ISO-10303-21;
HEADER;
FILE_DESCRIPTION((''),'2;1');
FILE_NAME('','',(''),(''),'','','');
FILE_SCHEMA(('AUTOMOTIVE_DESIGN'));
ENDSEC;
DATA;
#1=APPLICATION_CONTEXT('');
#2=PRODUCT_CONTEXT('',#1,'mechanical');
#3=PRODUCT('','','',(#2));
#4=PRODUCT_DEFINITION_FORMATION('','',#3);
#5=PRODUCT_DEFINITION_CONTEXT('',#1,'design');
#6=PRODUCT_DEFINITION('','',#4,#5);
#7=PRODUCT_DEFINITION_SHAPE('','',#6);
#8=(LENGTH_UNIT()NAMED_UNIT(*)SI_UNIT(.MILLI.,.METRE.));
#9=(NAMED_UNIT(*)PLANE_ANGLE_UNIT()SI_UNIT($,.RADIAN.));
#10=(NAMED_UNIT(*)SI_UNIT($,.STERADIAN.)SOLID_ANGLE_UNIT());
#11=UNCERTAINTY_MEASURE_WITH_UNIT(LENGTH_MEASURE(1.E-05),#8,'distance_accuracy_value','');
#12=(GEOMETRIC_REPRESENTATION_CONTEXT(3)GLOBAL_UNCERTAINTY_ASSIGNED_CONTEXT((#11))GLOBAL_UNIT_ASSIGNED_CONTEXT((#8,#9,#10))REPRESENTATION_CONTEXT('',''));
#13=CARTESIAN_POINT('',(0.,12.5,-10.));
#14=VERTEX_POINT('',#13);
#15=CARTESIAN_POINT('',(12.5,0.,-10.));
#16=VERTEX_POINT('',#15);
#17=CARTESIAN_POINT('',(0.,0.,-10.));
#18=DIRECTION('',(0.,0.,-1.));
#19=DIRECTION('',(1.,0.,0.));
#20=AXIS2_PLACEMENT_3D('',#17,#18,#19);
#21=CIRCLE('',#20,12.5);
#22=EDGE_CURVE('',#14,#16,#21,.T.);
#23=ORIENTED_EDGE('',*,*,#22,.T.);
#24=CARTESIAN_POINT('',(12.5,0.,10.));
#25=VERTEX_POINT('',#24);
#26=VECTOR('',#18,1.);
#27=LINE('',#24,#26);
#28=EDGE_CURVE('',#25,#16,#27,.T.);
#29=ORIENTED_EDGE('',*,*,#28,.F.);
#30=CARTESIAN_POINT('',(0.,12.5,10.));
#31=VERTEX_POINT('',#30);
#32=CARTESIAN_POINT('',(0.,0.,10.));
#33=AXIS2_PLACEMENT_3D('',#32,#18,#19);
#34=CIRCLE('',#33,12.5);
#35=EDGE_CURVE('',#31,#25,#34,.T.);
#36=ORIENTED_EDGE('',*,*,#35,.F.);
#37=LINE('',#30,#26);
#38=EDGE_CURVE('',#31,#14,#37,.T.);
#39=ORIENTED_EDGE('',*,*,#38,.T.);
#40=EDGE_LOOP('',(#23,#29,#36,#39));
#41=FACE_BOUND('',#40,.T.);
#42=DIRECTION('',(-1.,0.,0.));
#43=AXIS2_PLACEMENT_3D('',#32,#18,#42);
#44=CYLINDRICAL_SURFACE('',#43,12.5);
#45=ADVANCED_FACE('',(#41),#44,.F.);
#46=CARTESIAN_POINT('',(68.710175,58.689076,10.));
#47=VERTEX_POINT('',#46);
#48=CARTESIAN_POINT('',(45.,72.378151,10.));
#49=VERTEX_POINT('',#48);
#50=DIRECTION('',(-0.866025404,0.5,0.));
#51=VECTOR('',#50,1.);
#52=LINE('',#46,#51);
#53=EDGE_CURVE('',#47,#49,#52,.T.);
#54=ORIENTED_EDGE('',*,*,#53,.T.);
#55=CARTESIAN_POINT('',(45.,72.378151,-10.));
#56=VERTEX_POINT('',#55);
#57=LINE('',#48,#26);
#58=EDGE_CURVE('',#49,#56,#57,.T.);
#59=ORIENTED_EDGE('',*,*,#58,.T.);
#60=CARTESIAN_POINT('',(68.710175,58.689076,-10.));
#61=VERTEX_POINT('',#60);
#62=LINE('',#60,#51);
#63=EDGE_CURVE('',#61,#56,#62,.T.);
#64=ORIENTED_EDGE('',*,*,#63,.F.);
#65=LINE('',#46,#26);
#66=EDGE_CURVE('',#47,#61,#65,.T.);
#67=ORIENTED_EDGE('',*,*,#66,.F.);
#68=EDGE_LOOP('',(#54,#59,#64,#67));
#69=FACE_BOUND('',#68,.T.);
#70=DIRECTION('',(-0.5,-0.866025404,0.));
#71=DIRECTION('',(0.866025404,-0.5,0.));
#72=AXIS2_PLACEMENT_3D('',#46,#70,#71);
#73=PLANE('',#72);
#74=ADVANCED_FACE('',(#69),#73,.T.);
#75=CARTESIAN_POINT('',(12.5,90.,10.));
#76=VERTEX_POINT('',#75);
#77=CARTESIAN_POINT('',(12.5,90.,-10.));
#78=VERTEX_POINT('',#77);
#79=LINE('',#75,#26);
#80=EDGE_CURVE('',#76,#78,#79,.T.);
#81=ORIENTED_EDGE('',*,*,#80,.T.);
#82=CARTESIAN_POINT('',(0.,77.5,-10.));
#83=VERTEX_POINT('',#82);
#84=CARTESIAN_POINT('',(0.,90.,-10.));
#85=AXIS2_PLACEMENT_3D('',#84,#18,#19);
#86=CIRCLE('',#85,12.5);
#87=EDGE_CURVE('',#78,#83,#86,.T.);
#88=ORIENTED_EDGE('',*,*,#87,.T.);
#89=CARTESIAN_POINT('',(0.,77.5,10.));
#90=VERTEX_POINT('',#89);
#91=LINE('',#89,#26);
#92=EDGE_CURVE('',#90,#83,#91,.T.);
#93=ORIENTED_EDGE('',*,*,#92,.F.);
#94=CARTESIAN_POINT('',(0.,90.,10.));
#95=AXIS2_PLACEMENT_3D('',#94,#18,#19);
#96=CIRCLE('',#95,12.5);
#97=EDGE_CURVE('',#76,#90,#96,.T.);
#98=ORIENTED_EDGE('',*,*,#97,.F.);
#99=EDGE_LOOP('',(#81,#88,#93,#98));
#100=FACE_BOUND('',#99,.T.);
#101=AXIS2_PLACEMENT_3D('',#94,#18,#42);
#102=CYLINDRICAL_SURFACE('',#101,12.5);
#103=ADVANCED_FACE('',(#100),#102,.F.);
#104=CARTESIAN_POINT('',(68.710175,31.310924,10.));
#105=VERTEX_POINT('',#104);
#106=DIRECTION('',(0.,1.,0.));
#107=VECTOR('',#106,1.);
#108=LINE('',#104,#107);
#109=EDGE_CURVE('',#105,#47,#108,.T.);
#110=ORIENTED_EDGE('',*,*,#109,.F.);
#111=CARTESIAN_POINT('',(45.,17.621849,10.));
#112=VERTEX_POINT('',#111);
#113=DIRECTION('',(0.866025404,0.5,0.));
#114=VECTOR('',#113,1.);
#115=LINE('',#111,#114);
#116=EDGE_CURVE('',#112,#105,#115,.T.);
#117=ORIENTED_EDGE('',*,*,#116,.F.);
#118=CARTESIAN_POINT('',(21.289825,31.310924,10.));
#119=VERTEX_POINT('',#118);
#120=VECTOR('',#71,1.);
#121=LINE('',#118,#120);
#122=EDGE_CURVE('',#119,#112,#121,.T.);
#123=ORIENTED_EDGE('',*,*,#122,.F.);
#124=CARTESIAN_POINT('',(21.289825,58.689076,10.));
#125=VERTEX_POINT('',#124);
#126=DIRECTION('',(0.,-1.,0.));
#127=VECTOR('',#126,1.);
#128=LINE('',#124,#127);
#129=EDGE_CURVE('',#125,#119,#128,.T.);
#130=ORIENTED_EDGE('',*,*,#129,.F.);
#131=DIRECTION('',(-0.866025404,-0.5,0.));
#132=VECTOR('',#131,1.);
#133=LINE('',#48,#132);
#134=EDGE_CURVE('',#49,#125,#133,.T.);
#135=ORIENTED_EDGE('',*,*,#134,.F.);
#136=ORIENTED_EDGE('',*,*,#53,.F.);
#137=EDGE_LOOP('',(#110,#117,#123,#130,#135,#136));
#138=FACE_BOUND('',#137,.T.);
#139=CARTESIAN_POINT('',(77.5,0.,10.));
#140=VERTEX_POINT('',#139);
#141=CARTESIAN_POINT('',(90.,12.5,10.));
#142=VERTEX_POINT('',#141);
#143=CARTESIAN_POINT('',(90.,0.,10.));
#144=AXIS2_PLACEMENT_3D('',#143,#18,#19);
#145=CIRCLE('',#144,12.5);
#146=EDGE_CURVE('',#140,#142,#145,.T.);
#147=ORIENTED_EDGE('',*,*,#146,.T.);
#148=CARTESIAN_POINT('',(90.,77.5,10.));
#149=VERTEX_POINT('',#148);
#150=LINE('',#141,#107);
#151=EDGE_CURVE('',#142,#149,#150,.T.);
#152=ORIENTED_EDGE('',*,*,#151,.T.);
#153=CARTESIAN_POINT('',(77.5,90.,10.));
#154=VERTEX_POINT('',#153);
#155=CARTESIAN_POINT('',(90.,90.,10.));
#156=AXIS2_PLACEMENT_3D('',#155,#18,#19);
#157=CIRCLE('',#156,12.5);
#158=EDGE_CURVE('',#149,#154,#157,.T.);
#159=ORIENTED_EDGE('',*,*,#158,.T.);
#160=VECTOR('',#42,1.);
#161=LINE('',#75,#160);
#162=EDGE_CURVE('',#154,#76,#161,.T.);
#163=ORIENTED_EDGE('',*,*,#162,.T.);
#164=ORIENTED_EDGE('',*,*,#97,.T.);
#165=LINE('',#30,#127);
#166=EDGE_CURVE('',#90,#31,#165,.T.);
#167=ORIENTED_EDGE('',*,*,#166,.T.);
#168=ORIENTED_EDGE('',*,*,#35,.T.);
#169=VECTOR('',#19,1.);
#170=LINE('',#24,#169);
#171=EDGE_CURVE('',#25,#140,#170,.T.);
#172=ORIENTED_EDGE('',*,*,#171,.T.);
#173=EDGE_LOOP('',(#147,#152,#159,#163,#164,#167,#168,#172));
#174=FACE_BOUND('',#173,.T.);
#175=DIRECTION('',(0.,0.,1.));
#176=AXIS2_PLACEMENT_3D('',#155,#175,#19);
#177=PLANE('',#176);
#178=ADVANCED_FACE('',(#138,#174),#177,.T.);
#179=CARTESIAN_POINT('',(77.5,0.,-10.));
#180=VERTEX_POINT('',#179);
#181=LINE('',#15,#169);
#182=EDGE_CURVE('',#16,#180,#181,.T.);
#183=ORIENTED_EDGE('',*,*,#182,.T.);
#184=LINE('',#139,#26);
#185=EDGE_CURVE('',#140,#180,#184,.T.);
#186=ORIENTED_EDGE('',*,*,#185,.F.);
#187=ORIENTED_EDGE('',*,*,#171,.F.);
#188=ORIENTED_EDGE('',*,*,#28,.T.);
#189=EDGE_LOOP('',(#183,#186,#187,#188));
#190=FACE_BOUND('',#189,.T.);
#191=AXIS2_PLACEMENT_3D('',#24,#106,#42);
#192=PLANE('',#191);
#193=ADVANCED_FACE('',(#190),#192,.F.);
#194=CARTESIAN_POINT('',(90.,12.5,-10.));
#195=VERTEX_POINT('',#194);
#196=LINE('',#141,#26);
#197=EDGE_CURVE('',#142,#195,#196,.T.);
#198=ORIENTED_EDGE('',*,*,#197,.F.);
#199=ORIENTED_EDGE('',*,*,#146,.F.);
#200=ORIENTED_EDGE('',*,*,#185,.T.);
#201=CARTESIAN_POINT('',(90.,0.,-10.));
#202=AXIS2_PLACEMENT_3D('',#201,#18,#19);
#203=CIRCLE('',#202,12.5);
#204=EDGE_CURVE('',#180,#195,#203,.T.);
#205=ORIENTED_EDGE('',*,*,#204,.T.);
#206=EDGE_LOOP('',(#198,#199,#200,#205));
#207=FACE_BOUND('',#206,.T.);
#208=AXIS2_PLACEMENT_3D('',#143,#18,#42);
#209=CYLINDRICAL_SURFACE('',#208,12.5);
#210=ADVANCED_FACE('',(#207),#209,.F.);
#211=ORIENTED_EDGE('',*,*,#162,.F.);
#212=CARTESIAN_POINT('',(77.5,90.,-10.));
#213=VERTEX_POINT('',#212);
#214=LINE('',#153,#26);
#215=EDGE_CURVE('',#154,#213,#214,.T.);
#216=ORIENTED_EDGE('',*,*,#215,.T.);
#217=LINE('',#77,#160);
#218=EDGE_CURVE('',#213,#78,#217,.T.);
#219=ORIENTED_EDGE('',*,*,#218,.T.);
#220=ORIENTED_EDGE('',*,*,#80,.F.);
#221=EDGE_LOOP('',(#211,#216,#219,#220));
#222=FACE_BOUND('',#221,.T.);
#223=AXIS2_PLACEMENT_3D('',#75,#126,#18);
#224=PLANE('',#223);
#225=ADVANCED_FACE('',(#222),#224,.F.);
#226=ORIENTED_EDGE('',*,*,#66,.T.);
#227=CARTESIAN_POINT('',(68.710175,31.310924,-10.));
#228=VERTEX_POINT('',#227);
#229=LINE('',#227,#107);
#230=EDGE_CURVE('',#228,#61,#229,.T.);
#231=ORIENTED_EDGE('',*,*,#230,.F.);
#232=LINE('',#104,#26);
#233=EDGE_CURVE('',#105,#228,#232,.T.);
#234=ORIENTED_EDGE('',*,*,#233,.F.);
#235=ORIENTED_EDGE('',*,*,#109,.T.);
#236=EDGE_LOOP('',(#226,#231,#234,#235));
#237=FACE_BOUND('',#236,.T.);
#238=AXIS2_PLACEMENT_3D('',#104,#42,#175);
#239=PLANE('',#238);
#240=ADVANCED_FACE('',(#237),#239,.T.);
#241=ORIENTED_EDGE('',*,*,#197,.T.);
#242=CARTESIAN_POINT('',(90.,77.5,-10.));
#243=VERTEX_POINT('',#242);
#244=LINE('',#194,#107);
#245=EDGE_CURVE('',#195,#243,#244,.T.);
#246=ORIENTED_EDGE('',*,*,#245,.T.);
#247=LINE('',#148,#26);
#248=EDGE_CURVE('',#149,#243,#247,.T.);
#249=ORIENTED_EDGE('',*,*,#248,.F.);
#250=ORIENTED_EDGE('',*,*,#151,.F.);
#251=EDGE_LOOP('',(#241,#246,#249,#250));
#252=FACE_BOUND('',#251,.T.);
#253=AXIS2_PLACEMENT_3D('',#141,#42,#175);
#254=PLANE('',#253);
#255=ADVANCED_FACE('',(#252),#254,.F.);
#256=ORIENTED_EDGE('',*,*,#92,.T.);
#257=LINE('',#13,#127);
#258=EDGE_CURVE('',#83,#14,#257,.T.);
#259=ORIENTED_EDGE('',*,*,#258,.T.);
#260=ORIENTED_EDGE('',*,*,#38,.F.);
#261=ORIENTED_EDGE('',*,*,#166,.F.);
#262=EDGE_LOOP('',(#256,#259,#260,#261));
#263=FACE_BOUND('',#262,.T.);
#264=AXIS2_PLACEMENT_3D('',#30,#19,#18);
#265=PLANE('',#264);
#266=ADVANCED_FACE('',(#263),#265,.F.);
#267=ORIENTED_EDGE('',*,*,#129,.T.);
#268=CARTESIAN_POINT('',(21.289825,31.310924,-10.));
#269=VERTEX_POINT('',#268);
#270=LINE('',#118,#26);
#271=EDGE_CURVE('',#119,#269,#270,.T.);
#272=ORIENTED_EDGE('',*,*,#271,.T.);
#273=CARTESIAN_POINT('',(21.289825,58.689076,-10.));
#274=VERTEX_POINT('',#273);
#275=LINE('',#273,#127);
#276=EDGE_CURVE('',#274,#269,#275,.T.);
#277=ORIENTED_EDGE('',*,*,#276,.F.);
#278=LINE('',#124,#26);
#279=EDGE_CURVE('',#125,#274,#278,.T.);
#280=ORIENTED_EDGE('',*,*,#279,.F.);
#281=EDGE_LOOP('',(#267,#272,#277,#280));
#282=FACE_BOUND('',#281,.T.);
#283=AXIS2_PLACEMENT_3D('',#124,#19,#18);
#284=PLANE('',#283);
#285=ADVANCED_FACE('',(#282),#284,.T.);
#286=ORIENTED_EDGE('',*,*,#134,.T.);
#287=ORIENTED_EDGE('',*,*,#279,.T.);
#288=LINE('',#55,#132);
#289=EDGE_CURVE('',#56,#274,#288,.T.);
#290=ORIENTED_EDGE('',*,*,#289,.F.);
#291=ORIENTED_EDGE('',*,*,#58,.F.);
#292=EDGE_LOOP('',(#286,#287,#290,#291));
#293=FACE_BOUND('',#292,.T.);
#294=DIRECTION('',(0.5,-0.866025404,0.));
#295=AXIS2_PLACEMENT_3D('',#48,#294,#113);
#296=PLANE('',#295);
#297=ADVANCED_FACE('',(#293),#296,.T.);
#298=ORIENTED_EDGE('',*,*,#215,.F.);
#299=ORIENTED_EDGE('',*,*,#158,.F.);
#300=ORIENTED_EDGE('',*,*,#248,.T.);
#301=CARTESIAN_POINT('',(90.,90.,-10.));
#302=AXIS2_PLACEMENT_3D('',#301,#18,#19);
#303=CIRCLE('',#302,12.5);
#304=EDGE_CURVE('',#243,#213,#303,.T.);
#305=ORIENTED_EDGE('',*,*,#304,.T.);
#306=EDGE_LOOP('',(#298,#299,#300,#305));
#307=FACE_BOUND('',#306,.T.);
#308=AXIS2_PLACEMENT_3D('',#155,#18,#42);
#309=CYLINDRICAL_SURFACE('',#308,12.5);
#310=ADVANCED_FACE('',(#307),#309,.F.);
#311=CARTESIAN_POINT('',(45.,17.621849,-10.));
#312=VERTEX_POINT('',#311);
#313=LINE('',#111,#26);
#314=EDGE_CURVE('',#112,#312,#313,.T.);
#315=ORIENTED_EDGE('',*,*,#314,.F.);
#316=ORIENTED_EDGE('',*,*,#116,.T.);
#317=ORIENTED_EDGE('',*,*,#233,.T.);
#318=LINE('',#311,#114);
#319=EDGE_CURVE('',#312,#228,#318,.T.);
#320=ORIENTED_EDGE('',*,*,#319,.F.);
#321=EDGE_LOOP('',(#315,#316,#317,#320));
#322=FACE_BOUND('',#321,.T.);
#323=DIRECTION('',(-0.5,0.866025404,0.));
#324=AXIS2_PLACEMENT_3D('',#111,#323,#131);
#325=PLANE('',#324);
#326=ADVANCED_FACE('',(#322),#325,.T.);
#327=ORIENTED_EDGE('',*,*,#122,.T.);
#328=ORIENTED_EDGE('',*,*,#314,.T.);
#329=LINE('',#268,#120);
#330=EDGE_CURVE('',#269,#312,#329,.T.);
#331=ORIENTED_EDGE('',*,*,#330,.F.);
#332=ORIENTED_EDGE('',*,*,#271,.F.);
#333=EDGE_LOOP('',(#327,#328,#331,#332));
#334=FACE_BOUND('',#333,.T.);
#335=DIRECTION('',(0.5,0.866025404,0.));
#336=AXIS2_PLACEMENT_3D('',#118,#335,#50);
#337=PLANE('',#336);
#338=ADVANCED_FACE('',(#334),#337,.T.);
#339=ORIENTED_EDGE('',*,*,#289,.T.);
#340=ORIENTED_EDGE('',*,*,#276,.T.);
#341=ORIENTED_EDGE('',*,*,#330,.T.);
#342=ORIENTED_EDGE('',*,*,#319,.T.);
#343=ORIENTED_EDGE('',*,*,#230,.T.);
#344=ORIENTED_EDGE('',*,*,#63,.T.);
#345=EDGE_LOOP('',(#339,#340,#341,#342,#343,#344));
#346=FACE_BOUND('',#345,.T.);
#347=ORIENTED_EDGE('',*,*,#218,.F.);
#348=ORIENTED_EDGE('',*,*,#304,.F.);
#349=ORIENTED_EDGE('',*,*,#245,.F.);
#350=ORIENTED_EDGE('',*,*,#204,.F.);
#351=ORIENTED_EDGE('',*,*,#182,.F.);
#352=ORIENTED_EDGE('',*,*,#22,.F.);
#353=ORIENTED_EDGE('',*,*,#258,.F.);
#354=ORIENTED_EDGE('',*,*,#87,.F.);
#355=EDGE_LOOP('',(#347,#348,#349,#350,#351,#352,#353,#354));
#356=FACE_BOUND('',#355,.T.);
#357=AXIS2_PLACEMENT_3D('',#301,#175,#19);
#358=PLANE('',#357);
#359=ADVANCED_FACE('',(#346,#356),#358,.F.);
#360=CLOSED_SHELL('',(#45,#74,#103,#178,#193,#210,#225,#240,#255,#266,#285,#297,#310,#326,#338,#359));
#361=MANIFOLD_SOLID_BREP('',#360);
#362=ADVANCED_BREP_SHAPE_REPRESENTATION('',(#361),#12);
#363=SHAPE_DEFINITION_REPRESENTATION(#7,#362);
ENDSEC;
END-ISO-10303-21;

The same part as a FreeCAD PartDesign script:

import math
import FreeCAD as App
import Part
import Sketcher
from FreeCAD import Vector
Q = App.Units.Quantity


def add_polygon(sketch, points):
    """Adds a closed chain of lines whose ends are joined by coincident constraints."""
    first, n = sketch.GeometryCount, len(points)
    for a, b in zip(points, points[1:] + points[:1]):
        sketch.addGeometry(Part.LineSegment(App.Vector(*a, 0), App.Vector(*b, 0)), False)
    for i in range(n):
        sketch.addConstraint(Sketcher.Constraint("Coincident", first + i, 2, first + (i + 1) % n, 1))

doc = App.newDocument("Part")
body = doc.addObject("PartDesign::Body", "Body")

# Sketch on XY plane
sketch1 = body.newObject("Sketcher::SketchObject", "Sketch")
sketch1.AttachmentSupport = (doc.getObject("XY_Plane"), [""])
sketch1.MapMode = "FlatFace"
sketch1.addGeometry(Part.LineSegment(Vector(12, 0, 0), Vector(78, 0, 0)), False)  # 0
sketch1.addGeometry(Part.ArcOfCircle(Part.Circle(Vector(90, 0, 0), Vector(0, 0, 1), 12), math.radians(90), math.radians(180)), False)  # 1
sketch1.addGeometry(Part.LineSegment(Vector(90, 12, 0), Vector(90, 78, 0)), False)  # 2
sketch1.addGeometry(Part.ArcOfCircle(Part.Circle(Vector(90, 90, 0), Vector(0, 0, 1), 12), math.radians(180), math.radians(270)), False)  # 3
sketch1.addGeometry(Part.LineSegment(Vector(78, 90, 0), Vector(12, 90, 0)), False)  # 4
sketch1.addGeometry(Part.ArcOfCircle(Part.Circle(Vector(0, 90, 0), Vector(0, 0, 1), 12), math.radians(-90), math.radians(0)), False)  # 5
sketch1.addGeometry(Part.LineSegment(Vector(0, 78, 0), Vector(0, 12, 0)), False)  # 6
sketch1.addGeometry(Part.ArcOfCircle(Part.Circle(Vector(0, 0, 0), Vector(0, 0, 1), 12), math.radians(0), math.radians(90)), False)  # 7
add_polygon(sketch1, [(21, 59), (45, 72), (69, 59), (69, 31), (45, 18), (21, 31)])  # lines 8-13
sketch1.addConstraint(Sketcher.Constraint("Coincident", 0, 2, 1, 2))
sketch1.addConstraint(Sketcher.Constraint("Coincident", 1, 1, 2, 1))
sketch1.addConstraint(Sketcher.Constraint("Coincident", 2, 2, 3, 2))
sketch1.addConstraint(Sketcher.Constraint("Coincident", 3, 1, 4, 1))
sketch1.addConstraint(Sketcher.Constraint("Coincident", 4, 2, 5, 2))
sketch1.addConstraint(Sketcher.Constraint("Coincident", 5, 1, 6, 1))
sketch1.addConstraint(Sketcher.Constraint("Coincident", 6, 2, 7, 2))
sketch1.addConstraint(Sketcher.Constraint("Coincident", 7, 1, 0, 1))
sketch1.addConstraint(Sketcher.Constraint("Horizontal", 0))
sketch1.addConstraint(Sketcher.Constraint("Vertical", 2))
sketch1.addConstraint(Sketcher.Constraint("Horizontal", 4))
sketch1.addConstraint(Sketcher.Constraint("Vertical", 6))
sketch1.addConstraint(Sketcher.Constraint("Vertical", 10))
sketch1.addConstraint(Sketcher.Constraint("Vertical", 13))
sketch1.addConstraint(Sketcher.Constraint("Coincident", 7, 3, -1, 1))
sketch1.addConstraint(Sketcher.Constraint("Equal", 1, 3))
sketch1.addConstraint(Sketcher.Constraint("Equal", 3, 5))
sketch1.addConstraint(Sketcher.Constraint("Equal", 5, 7))
sketch1.addConstraint(Sketcher.Constraint("PointOnObject", 1, 3, -1))
sketch1.addConstraint(Sketcher.Constraint("PointOnObject", 5, 3, -2))
sketch1.addConstraint(Sketcher.Constraint("PointOnObject", 0, 2, -1))
sketch1.addConstraint(Sketcher.Constraint("PointOnObject", 5, 1, -2))
sketch1.addConstraint(Sketcher.Constraint("Parallel", 8, 11))
sketch1.addConstraint(Sketcher.Constraint("Parallel", 9, 12))
sketch1.addConstraint(Sketcher.Constraint("Horizontal", 3, 3, 5, 3))
sketch1.addConstraint(Sketcher.Constraint("Horizontal", 5, 3, 3, 1))
sketch1.addConstraint(Sketcher.Constraint("Horizontal", 10, 2, 12, 2))
sketch1.addConstraint(Sketcher.Constraint("Horizontal", 9, 2, 13, 2))
sketch1.addConstraint(Sketcher.Constraint("Vertical", 1, 3, 3, 3))
sketch1.addConstraint(Sketcher.Constraint("Vertical", 3, 3, 1, 1))
sketch1.addConstraint(Sketcher.Constraint("Vertical", 8, 2, 11, 2))
sketch1.addConstraint(Sketcher.Constraint("Equal", 4, 2))
sketch1.addConstraint(Sketcher.Constraint("Radius", 1, Q("12.5 mm")))
sketch1.addConstraint(Sketcher.Constraint("DistanceX", 0, 1, 0, 2, Q("65 mm")))
sketch1.addConstraint(Sketcher.Constraint("Angle", 8, Q("30 deg")))
sketch1.addConstraint(Sketcher.Constraint("DistanceX", -1, 1, 8, 2, Q("45 mm")))
sketch1.addConstraint(Sketcher.Constraint("DistanceY", 10, 2, 10, 1, Q("27.378151 mm")))
sketch1.addConstraint(Sketcher.Constraint("Distance", 8, Q("27.378151 mm")))
sketch1.addConstraint(Sketcher.Constraint("DistanceY", -1, 1, 8, 2, Q("72.378151 mm")))
pad1 = body.newObject("PartDesign::Pad", "Pad")
pad1.Profile = sketch1
pad1.Length = 20
pad1.Midplane = True

doc.recompute()
